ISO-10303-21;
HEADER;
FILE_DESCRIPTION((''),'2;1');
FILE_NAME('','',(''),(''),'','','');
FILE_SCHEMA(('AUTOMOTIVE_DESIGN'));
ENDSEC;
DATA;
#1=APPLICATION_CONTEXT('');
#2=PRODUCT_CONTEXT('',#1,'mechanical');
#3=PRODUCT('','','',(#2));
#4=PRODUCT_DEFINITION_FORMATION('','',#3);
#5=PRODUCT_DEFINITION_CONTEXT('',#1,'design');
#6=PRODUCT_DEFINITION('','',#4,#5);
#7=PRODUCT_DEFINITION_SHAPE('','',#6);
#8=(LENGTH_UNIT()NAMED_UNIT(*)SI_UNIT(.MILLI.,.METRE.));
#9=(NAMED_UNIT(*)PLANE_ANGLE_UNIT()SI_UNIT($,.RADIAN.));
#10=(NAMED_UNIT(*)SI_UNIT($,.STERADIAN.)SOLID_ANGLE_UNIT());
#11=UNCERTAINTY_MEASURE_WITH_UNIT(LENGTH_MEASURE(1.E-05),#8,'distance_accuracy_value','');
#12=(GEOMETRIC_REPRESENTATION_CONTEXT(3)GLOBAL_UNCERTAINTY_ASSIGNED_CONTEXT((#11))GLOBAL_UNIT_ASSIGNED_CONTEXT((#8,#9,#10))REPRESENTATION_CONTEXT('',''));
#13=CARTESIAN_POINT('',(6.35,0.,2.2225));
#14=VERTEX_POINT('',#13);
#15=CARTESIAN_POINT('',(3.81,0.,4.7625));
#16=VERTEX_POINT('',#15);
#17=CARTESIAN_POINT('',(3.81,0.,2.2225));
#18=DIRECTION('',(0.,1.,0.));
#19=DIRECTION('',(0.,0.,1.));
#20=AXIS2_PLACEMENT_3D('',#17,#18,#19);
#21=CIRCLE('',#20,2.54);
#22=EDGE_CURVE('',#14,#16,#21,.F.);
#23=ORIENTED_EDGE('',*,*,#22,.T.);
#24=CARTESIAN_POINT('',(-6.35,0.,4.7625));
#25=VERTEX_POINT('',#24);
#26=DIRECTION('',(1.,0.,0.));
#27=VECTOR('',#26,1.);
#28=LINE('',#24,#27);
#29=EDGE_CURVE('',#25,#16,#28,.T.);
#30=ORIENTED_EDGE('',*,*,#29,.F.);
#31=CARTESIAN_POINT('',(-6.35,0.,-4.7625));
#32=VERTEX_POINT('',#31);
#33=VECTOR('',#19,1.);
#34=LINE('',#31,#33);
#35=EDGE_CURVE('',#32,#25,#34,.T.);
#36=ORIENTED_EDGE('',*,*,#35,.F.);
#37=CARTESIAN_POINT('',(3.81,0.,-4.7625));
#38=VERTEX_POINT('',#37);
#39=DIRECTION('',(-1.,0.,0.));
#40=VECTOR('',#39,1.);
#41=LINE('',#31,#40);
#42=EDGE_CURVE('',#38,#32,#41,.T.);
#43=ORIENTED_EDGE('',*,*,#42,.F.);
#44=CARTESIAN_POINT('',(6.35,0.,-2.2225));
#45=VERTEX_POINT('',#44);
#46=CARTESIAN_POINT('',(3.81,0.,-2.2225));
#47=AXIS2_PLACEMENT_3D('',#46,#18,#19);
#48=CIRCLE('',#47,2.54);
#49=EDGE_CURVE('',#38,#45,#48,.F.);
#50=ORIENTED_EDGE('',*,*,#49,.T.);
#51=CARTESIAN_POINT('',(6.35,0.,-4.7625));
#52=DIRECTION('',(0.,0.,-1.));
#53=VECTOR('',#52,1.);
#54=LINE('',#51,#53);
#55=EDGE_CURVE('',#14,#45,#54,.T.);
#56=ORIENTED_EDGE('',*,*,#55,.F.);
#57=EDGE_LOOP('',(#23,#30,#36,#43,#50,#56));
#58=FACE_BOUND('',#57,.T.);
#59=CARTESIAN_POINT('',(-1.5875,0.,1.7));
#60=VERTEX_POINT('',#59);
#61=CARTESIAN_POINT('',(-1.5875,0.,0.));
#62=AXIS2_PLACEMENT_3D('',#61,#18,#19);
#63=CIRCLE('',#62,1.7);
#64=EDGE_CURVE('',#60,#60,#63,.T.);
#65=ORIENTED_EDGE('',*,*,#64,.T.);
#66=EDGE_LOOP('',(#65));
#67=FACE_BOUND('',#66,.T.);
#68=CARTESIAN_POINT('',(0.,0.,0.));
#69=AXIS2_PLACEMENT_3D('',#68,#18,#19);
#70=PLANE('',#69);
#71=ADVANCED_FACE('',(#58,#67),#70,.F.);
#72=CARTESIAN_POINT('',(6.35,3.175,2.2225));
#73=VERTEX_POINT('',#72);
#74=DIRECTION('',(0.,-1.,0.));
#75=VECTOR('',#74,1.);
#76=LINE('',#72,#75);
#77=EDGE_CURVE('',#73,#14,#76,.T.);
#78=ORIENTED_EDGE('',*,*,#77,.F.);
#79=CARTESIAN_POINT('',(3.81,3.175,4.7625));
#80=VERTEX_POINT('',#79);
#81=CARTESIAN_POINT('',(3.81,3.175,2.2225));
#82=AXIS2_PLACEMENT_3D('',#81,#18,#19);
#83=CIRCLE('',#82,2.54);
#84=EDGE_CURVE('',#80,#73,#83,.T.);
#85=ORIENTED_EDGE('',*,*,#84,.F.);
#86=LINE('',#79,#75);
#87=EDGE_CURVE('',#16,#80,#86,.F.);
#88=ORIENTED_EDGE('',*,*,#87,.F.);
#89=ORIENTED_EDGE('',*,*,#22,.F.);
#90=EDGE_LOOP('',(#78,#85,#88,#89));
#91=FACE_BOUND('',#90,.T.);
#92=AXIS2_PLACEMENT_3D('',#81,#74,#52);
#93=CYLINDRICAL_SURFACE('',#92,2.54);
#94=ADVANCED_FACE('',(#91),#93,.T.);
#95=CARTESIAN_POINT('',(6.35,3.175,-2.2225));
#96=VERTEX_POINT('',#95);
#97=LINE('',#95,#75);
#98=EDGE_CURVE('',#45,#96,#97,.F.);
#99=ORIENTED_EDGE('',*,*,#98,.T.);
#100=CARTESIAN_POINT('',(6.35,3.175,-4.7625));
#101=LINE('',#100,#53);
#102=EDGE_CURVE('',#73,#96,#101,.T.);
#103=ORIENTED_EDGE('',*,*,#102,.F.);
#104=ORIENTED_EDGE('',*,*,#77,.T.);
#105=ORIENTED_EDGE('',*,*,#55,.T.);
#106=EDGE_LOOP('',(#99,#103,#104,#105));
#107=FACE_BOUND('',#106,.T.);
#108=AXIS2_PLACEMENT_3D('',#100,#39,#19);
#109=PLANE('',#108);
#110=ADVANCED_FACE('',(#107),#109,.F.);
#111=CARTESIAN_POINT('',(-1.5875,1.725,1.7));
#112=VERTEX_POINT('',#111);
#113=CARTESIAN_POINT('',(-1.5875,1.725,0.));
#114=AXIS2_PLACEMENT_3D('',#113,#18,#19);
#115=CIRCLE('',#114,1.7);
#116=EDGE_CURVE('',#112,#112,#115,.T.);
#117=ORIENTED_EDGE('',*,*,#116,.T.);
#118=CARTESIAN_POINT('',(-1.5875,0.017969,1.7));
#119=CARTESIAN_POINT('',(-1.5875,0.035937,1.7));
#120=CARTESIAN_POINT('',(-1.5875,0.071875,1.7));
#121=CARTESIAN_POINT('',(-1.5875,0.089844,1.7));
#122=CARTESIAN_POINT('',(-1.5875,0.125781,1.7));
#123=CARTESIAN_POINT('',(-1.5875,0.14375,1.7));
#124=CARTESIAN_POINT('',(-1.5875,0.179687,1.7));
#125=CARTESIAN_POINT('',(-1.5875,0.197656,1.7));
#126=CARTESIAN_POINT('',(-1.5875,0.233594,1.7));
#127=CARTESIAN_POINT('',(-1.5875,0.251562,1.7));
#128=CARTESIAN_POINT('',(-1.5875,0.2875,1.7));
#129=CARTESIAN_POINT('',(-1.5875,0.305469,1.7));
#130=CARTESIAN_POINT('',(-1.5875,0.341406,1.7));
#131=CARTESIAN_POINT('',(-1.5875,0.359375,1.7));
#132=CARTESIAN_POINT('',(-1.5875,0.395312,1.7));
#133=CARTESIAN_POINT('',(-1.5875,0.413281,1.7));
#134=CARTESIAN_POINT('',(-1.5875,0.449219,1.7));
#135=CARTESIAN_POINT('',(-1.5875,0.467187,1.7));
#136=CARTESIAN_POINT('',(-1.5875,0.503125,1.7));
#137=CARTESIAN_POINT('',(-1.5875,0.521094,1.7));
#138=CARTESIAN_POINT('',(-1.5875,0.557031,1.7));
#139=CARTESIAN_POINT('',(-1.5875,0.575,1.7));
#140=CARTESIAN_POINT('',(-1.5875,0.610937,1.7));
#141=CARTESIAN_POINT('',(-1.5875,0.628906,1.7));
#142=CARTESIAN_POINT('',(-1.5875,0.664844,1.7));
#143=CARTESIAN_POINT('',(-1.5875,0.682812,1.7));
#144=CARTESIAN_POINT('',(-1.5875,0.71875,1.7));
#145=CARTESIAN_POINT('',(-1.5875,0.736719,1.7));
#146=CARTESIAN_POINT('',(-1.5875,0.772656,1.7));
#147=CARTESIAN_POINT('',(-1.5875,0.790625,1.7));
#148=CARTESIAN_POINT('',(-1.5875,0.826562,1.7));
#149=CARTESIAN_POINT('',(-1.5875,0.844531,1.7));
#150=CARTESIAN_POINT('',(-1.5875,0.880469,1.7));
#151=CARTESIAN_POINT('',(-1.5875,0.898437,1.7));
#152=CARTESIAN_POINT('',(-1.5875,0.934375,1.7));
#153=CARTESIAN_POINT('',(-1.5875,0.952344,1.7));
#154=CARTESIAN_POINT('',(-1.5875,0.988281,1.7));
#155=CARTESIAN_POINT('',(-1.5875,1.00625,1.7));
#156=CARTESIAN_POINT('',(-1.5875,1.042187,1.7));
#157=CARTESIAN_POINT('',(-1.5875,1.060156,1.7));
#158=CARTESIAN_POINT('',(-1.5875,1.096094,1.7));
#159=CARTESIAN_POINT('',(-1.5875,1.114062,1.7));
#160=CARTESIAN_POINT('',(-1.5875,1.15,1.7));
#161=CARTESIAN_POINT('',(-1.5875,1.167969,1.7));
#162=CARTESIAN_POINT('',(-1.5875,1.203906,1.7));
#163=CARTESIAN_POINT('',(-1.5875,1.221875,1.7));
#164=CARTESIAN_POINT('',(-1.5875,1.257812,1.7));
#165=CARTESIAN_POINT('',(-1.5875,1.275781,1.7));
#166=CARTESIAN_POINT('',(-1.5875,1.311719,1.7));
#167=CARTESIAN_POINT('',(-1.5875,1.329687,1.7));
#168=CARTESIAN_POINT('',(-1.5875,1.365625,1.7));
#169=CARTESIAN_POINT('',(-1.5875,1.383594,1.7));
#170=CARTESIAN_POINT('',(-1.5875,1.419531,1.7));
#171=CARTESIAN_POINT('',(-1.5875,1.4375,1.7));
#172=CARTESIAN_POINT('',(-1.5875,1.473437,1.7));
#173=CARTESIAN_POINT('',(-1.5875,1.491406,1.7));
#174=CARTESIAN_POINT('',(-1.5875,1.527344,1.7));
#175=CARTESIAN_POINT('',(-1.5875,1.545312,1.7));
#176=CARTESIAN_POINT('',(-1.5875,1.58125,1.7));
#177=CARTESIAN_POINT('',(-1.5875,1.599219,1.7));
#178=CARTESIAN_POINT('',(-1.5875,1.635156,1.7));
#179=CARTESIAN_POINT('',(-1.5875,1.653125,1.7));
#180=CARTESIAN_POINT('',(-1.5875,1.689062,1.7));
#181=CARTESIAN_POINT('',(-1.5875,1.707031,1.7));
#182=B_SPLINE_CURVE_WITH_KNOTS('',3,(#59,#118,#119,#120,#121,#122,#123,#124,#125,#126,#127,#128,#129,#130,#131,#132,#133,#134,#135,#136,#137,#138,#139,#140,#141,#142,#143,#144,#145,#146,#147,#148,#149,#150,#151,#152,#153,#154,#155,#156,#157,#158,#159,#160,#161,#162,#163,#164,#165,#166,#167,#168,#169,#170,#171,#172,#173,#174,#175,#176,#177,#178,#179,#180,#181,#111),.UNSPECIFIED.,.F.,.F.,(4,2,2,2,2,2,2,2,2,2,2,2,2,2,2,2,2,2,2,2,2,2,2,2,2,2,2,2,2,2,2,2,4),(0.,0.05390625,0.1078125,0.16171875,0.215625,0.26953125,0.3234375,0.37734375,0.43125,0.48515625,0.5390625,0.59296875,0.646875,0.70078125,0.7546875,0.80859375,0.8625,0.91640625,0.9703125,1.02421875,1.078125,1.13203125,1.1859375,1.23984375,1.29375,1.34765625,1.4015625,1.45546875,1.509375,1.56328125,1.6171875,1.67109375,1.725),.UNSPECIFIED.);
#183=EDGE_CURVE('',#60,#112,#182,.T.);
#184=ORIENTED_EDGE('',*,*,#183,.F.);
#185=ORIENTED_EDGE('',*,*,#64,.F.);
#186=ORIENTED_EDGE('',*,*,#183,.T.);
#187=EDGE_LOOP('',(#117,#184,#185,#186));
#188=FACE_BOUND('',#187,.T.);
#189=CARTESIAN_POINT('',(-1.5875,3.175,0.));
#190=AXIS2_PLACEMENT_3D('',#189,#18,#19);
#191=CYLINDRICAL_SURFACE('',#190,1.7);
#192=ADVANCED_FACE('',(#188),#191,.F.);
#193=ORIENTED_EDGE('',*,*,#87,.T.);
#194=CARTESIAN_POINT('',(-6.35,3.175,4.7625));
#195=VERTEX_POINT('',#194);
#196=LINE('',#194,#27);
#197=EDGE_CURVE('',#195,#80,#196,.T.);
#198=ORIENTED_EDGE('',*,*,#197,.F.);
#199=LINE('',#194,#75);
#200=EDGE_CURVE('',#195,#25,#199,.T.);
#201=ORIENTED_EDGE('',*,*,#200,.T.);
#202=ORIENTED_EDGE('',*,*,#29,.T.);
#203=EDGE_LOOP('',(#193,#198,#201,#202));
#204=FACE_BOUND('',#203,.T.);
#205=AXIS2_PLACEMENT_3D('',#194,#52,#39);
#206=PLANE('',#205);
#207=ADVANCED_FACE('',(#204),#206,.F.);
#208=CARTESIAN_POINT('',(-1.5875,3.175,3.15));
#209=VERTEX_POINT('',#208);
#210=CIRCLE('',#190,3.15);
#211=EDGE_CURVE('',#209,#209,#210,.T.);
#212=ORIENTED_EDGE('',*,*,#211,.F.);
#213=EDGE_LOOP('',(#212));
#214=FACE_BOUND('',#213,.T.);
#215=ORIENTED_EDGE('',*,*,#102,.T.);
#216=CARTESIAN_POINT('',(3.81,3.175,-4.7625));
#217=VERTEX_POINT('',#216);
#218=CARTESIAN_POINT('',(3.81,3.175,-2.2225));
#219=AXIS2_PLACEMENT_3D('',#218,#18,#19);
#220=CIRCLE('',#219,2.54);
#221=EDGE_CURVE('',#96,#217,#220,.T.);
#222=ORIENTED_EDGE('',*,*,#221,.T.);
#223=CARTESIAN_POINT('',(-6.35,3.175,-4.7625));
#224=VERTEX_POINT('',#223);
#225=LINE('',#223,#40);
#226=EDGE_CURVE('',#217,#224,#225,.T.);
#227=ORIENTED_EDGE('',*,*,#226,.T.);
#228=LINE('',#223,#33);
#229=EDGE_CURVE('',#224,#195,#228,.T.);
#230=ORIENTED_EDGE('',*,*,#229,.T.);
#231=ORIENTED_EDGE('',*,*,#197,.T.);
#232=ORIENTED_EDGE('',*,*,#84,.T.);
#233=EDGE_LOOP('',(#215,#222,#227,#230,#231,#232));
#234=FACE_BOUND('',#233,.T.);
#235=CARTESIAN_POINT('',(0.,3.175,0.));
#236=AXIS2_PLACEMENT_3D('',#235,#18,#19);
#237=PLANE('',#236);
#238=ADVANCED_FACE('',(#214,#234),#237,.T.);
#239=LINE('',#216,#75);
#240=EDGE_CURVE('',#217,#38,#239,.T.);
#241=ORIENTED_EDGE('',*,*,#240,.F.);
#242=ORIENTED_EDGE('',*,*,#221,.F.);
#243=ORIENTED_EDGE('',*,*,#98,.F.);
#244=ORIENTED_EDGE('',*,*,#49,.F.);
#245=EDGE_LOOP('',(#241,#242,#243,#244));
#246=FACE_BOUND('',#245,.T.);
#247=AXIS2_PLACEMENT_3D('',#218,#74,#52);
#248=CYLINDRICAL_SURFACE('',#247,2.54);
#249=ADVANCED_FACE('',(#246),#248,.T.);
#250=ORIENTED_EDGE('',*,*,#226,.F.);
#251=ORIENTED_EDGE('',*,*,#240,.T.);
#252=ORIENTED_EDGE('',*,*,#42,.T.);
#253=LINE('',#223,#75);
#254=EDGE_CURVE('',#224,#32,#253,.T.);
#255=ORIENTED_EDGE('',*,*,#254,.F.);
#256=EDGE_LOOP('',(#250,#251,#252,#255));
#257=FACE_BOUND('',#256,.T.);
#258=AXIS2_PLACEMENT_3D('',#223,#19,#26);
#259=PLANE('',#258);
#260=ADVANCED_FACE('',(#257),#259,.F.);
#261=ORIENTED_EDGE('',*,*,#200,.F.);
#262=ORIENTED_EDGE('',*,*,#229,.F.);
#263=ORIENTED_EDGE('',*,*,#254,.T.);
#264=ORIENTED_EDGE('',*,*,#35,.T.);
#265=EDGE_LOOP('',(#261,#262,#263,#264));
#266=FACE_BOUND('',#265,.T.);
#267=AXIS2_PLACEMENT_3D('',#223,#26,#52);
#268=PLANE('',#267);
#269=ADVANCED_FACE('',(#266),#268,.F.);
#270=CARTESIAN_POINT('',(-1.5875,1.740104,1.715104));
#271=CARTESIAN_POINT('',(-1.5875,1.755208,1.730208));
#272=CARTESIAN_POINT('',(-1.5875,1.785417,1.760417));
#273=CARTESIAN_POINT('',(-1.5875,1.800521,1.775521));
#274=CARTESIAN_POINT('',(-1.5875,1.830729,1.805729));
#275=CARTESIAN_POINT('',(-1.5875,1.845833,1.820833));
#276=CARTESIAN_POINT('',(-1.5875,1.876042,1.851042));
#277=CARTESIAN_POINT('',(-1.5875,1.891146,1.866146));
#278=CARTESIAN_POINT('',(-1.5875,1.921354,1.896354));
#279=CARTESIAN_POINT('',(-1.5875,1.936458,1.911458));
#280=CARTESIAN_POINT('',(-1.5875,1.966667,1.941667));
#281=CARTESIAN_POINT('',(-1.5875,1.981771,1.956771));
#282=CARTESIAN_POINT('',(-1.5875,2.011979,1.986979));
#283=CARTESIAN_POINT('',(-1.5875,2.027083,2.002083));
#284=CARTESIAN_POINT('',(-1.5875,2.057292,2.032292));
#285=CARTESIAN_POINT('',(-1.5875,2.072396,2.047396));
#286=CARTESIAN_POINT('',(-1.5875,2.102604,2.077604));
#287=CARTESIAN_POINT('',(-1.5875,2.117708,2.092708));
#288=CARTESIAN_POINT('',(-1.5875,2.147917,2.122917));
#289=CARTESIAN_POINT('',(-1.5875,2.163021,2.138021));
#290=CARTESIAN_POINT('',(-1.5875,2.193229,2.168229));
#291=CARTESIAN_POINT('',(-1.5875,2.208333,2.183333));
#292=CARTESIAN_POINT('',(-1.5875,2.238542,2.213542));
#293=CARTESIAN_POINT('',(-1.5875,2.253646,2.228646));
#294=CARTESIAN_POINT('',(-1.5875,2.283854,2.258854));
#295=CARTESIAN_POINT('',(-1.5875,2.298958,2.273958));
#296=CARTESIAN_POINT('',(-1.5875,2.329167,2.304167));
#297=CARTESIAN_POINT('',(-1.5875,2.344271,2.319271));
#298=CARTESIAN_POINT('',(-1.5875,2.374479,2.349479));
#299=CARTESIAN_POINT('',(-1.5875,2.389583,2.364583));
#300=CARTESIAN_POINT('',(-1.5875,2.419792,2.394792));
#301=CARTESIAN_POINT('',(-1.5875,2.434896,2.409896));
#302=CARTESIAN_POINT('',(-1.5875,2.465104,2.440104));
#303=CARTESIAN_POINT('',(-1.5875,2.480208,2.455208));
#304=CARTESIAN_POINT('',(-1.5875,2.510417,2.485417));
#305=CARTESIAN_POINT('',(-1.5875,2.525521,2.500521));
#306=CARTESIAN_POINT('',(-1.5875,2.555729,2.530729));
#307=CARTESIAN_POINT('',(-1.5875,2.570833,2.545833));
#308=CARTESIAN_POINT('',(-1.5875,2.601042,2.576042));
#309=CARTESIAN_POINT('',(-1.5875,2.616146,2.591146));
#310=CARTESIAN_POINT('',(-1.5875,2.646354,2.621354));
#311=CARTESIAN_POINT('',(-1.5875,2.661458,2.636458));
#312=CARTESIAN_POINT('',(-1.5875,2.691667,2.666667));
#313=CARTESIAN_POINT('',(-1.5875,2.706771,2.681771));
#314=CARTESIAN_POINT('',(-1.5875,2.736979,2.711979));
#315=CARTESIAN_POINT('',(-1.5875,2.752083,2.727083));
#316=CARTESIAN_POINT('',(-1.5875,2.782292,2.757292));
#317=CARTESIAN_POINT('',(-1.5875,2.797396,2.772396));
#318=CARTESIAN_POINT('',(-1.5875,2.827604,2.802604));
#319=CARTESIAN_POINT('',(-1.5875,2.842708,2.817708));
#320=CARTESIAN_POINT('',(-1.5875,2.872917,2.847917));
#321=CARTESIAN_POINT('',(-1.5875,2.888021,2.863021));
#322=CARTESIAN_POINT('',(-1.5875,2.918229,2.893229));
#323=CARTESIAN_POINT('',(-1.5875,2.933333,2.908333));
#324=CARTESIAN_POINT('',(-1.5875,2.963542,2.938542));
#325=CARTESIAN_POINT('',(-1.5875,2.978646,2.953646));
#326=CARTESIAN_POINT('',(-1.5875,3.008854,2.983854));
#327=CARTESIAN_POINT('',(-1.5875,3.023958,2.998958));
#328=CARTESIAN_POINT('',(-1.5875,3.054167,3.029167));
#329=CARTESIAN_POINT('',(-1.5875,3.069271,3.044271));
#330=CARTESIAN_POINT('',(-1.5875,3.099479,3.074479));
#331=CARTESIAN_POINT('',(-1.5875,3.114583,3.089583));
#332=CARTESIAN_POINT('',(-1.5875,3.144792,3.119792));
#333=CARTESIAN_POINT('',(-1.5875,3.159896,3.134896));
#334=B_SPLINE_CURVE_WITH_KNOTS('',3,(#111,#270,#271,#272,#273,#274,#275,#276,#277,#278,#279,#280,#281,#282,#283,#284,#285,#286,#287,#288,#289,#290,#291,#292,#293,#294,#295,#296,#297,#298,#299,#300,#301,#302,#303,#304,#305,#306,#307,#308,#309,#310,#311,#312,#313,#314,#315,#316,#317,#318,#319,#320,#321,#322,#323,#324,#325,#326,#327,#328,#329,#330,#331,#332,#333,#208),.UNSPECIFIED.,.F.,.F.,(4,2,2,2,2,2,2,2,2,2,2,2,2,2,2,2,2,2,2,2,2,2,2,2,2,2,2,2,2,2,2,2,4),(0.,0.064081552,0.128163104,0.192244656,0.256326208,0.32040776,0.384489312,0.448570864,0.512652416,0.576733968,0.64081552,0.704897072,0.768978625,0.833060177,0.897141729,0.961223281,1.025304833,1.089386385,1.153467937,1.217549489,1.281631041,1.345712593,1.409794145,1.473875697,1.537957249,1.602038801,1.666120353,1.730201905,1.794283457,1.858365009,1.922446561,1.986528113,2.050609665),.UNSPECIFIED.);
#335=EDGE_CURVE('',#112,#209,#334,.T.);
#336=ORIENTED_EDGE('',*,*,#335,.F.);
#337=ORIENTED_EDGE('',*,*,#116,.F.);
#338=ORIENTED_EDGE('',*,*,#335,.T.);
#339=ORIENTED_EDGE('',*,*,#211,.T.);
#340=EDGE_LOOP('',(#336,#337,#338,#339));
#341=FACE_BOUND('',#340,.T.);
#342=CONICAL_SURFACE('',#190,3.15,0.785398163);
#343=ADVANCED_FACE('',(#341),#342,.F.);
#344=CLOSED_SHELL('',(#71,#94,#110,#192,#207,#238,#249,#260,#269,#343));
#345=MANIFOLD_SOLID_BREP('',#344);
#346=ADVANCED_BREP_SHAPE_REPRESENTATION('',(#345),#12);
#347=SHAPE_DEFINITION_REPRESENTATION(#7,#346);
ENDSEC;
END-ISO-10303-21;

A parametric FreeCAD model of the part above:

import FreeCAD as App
import Part
import Sketcher
from FreeCAD import Vector
Q = App.Units.Quantity


def edges_at(feature, points):
    """Names of the edges that pass closest to the given points."""
    edges = feature.Shape.Edges
    near = lambda p: min(range(len(edges)), key=lambda i: edges[i].distToShape(Part.Vertex(*p))[0])
    return sorted({f"Edge{near(p) + 1}" for p in points})

doc = App.newDocument("Part")
body = doc.addObject("PartDesign::Body", "Body")

# Sketch on XZ plane
sketch1 = doc.addObject("Sketcher::SketchObject", "Sketch")
body.addObject(sketch1)
sketch1.AttachmentSupport = (doc.XZ_Plane, [""])
sketch1.MapMode = "FlatFace"
sketch1.addGeometry(Part.LineSegment(Vector(-6, -5, 0), Vector(-6, 5, 0)), False)
sketch1.addGeometry(Part.LineSegment(Vector(-6, 5, 0), Vector(6, 5, 0)), False)
sketch1.addGeometry(Part.LineSegment(Vector(6, 5, 0), Vector(6, -5, 0)), False)
sketch1.addGeometry(Part.LineSegment(Vector(6, -5, 0), Vector(-6, -5, 0)), False)
sketch1.addConstraint(Sketcher.Constraint("Coincident", 0, 2, 1, 1))
sketch1.addConstraint(Sketcher.Constraint("Coincident", 1, 2, 2, 1))
sketch1.addConstraint(Sketcher.Constraint("Coincident", 2, 2, 3, 1))
sketch1.addConstraint(Sketcher.Constraint("Coincident", 3, 2, 0, 1))
sketch1.addConstraint(Sketcher.Constraint("Vertical", 0))
sketch1.addConstraint(Sketcher.Constraint("Horizontal", 1))
sketch1.addConstraint(Sketcher.Constraint("Vertical", 2))
sketch1.addConstraint(Sketcher.Constraint("Horizontal", 3))
sketch1.addConstraint(Sketcher.Constraint("Symmetric", 0, 2, 2, 2, -1, 1))
sketch1.addConstraint(Sketcher.Constraint("DistanceX", 1, 1, 1, 2, Q("0.5 in")))
sketch1.addConstraint(Sketcher.Constraint("DistanceY", 0, 1, 0, 2, Q("0.375 in")))
pad1 = doc.addObject("PartDesign::Pad", "Pad")
body.addObject(pad1)
pad1.Profile = sketch1
pad1.Length = Q("0.125 in")
pad1.Reversed = True

# Sketch on XZ plane
sketch2 = doc.addObject("Sketcher::SketchObject", "Sketch001")
body.addObject(sketch2)
sketch2.AttachmentSupport = (doc.XZ_Plane, [""])
sketch2.MapMode = "FlatFace"
sketch2.AttachmentOffset = App.Placement(Vector(0, 0, -0.125 * 25.4), App.Rotation())
sketch2.addGeometry(Part.Circle(Vector(-1.6, 0, 0), Vector(0, 0, 1), 1.7), False)
sketch2.addConstraint(Sketcher.Constraint("PointOnObject", 0, 3, -1))
sketch2.addConstraint(Sketcher.Constraint("Diameter", 0, Q("3.4 mm")))
sketch2.addConstraint(Sketcher.Constraint("DistanceX", 0, 3, -1, 1, Q("0.0625 in")))
doc.recompute()
hole = doc.addObject("PartDesign::Hole", "Hole")
body.addObject(hole)
hole.Profile = sketch2
hole.ThreadType = "None"
hole.Diameter = 3.4
hole.DepthType = "ThroughAll"
hole.HoleCutType = "Countersink"
hole.HoleCutDiameter = 6.3
hole.HoleCutCountersinkAngle = 90
hole.Reversed = True
doc.recompute()

fillet = doc.addObject("PartDesign::Fillet", "Fillet")
body.addObject(fillet)
fillet.Base = (hole, edges_at(hole, [(6.35, 1.587, -4.763), (6.35, 1.587, 4.763)]))
fillet.Radius = Q("0.1 in")

doc.recompute()
